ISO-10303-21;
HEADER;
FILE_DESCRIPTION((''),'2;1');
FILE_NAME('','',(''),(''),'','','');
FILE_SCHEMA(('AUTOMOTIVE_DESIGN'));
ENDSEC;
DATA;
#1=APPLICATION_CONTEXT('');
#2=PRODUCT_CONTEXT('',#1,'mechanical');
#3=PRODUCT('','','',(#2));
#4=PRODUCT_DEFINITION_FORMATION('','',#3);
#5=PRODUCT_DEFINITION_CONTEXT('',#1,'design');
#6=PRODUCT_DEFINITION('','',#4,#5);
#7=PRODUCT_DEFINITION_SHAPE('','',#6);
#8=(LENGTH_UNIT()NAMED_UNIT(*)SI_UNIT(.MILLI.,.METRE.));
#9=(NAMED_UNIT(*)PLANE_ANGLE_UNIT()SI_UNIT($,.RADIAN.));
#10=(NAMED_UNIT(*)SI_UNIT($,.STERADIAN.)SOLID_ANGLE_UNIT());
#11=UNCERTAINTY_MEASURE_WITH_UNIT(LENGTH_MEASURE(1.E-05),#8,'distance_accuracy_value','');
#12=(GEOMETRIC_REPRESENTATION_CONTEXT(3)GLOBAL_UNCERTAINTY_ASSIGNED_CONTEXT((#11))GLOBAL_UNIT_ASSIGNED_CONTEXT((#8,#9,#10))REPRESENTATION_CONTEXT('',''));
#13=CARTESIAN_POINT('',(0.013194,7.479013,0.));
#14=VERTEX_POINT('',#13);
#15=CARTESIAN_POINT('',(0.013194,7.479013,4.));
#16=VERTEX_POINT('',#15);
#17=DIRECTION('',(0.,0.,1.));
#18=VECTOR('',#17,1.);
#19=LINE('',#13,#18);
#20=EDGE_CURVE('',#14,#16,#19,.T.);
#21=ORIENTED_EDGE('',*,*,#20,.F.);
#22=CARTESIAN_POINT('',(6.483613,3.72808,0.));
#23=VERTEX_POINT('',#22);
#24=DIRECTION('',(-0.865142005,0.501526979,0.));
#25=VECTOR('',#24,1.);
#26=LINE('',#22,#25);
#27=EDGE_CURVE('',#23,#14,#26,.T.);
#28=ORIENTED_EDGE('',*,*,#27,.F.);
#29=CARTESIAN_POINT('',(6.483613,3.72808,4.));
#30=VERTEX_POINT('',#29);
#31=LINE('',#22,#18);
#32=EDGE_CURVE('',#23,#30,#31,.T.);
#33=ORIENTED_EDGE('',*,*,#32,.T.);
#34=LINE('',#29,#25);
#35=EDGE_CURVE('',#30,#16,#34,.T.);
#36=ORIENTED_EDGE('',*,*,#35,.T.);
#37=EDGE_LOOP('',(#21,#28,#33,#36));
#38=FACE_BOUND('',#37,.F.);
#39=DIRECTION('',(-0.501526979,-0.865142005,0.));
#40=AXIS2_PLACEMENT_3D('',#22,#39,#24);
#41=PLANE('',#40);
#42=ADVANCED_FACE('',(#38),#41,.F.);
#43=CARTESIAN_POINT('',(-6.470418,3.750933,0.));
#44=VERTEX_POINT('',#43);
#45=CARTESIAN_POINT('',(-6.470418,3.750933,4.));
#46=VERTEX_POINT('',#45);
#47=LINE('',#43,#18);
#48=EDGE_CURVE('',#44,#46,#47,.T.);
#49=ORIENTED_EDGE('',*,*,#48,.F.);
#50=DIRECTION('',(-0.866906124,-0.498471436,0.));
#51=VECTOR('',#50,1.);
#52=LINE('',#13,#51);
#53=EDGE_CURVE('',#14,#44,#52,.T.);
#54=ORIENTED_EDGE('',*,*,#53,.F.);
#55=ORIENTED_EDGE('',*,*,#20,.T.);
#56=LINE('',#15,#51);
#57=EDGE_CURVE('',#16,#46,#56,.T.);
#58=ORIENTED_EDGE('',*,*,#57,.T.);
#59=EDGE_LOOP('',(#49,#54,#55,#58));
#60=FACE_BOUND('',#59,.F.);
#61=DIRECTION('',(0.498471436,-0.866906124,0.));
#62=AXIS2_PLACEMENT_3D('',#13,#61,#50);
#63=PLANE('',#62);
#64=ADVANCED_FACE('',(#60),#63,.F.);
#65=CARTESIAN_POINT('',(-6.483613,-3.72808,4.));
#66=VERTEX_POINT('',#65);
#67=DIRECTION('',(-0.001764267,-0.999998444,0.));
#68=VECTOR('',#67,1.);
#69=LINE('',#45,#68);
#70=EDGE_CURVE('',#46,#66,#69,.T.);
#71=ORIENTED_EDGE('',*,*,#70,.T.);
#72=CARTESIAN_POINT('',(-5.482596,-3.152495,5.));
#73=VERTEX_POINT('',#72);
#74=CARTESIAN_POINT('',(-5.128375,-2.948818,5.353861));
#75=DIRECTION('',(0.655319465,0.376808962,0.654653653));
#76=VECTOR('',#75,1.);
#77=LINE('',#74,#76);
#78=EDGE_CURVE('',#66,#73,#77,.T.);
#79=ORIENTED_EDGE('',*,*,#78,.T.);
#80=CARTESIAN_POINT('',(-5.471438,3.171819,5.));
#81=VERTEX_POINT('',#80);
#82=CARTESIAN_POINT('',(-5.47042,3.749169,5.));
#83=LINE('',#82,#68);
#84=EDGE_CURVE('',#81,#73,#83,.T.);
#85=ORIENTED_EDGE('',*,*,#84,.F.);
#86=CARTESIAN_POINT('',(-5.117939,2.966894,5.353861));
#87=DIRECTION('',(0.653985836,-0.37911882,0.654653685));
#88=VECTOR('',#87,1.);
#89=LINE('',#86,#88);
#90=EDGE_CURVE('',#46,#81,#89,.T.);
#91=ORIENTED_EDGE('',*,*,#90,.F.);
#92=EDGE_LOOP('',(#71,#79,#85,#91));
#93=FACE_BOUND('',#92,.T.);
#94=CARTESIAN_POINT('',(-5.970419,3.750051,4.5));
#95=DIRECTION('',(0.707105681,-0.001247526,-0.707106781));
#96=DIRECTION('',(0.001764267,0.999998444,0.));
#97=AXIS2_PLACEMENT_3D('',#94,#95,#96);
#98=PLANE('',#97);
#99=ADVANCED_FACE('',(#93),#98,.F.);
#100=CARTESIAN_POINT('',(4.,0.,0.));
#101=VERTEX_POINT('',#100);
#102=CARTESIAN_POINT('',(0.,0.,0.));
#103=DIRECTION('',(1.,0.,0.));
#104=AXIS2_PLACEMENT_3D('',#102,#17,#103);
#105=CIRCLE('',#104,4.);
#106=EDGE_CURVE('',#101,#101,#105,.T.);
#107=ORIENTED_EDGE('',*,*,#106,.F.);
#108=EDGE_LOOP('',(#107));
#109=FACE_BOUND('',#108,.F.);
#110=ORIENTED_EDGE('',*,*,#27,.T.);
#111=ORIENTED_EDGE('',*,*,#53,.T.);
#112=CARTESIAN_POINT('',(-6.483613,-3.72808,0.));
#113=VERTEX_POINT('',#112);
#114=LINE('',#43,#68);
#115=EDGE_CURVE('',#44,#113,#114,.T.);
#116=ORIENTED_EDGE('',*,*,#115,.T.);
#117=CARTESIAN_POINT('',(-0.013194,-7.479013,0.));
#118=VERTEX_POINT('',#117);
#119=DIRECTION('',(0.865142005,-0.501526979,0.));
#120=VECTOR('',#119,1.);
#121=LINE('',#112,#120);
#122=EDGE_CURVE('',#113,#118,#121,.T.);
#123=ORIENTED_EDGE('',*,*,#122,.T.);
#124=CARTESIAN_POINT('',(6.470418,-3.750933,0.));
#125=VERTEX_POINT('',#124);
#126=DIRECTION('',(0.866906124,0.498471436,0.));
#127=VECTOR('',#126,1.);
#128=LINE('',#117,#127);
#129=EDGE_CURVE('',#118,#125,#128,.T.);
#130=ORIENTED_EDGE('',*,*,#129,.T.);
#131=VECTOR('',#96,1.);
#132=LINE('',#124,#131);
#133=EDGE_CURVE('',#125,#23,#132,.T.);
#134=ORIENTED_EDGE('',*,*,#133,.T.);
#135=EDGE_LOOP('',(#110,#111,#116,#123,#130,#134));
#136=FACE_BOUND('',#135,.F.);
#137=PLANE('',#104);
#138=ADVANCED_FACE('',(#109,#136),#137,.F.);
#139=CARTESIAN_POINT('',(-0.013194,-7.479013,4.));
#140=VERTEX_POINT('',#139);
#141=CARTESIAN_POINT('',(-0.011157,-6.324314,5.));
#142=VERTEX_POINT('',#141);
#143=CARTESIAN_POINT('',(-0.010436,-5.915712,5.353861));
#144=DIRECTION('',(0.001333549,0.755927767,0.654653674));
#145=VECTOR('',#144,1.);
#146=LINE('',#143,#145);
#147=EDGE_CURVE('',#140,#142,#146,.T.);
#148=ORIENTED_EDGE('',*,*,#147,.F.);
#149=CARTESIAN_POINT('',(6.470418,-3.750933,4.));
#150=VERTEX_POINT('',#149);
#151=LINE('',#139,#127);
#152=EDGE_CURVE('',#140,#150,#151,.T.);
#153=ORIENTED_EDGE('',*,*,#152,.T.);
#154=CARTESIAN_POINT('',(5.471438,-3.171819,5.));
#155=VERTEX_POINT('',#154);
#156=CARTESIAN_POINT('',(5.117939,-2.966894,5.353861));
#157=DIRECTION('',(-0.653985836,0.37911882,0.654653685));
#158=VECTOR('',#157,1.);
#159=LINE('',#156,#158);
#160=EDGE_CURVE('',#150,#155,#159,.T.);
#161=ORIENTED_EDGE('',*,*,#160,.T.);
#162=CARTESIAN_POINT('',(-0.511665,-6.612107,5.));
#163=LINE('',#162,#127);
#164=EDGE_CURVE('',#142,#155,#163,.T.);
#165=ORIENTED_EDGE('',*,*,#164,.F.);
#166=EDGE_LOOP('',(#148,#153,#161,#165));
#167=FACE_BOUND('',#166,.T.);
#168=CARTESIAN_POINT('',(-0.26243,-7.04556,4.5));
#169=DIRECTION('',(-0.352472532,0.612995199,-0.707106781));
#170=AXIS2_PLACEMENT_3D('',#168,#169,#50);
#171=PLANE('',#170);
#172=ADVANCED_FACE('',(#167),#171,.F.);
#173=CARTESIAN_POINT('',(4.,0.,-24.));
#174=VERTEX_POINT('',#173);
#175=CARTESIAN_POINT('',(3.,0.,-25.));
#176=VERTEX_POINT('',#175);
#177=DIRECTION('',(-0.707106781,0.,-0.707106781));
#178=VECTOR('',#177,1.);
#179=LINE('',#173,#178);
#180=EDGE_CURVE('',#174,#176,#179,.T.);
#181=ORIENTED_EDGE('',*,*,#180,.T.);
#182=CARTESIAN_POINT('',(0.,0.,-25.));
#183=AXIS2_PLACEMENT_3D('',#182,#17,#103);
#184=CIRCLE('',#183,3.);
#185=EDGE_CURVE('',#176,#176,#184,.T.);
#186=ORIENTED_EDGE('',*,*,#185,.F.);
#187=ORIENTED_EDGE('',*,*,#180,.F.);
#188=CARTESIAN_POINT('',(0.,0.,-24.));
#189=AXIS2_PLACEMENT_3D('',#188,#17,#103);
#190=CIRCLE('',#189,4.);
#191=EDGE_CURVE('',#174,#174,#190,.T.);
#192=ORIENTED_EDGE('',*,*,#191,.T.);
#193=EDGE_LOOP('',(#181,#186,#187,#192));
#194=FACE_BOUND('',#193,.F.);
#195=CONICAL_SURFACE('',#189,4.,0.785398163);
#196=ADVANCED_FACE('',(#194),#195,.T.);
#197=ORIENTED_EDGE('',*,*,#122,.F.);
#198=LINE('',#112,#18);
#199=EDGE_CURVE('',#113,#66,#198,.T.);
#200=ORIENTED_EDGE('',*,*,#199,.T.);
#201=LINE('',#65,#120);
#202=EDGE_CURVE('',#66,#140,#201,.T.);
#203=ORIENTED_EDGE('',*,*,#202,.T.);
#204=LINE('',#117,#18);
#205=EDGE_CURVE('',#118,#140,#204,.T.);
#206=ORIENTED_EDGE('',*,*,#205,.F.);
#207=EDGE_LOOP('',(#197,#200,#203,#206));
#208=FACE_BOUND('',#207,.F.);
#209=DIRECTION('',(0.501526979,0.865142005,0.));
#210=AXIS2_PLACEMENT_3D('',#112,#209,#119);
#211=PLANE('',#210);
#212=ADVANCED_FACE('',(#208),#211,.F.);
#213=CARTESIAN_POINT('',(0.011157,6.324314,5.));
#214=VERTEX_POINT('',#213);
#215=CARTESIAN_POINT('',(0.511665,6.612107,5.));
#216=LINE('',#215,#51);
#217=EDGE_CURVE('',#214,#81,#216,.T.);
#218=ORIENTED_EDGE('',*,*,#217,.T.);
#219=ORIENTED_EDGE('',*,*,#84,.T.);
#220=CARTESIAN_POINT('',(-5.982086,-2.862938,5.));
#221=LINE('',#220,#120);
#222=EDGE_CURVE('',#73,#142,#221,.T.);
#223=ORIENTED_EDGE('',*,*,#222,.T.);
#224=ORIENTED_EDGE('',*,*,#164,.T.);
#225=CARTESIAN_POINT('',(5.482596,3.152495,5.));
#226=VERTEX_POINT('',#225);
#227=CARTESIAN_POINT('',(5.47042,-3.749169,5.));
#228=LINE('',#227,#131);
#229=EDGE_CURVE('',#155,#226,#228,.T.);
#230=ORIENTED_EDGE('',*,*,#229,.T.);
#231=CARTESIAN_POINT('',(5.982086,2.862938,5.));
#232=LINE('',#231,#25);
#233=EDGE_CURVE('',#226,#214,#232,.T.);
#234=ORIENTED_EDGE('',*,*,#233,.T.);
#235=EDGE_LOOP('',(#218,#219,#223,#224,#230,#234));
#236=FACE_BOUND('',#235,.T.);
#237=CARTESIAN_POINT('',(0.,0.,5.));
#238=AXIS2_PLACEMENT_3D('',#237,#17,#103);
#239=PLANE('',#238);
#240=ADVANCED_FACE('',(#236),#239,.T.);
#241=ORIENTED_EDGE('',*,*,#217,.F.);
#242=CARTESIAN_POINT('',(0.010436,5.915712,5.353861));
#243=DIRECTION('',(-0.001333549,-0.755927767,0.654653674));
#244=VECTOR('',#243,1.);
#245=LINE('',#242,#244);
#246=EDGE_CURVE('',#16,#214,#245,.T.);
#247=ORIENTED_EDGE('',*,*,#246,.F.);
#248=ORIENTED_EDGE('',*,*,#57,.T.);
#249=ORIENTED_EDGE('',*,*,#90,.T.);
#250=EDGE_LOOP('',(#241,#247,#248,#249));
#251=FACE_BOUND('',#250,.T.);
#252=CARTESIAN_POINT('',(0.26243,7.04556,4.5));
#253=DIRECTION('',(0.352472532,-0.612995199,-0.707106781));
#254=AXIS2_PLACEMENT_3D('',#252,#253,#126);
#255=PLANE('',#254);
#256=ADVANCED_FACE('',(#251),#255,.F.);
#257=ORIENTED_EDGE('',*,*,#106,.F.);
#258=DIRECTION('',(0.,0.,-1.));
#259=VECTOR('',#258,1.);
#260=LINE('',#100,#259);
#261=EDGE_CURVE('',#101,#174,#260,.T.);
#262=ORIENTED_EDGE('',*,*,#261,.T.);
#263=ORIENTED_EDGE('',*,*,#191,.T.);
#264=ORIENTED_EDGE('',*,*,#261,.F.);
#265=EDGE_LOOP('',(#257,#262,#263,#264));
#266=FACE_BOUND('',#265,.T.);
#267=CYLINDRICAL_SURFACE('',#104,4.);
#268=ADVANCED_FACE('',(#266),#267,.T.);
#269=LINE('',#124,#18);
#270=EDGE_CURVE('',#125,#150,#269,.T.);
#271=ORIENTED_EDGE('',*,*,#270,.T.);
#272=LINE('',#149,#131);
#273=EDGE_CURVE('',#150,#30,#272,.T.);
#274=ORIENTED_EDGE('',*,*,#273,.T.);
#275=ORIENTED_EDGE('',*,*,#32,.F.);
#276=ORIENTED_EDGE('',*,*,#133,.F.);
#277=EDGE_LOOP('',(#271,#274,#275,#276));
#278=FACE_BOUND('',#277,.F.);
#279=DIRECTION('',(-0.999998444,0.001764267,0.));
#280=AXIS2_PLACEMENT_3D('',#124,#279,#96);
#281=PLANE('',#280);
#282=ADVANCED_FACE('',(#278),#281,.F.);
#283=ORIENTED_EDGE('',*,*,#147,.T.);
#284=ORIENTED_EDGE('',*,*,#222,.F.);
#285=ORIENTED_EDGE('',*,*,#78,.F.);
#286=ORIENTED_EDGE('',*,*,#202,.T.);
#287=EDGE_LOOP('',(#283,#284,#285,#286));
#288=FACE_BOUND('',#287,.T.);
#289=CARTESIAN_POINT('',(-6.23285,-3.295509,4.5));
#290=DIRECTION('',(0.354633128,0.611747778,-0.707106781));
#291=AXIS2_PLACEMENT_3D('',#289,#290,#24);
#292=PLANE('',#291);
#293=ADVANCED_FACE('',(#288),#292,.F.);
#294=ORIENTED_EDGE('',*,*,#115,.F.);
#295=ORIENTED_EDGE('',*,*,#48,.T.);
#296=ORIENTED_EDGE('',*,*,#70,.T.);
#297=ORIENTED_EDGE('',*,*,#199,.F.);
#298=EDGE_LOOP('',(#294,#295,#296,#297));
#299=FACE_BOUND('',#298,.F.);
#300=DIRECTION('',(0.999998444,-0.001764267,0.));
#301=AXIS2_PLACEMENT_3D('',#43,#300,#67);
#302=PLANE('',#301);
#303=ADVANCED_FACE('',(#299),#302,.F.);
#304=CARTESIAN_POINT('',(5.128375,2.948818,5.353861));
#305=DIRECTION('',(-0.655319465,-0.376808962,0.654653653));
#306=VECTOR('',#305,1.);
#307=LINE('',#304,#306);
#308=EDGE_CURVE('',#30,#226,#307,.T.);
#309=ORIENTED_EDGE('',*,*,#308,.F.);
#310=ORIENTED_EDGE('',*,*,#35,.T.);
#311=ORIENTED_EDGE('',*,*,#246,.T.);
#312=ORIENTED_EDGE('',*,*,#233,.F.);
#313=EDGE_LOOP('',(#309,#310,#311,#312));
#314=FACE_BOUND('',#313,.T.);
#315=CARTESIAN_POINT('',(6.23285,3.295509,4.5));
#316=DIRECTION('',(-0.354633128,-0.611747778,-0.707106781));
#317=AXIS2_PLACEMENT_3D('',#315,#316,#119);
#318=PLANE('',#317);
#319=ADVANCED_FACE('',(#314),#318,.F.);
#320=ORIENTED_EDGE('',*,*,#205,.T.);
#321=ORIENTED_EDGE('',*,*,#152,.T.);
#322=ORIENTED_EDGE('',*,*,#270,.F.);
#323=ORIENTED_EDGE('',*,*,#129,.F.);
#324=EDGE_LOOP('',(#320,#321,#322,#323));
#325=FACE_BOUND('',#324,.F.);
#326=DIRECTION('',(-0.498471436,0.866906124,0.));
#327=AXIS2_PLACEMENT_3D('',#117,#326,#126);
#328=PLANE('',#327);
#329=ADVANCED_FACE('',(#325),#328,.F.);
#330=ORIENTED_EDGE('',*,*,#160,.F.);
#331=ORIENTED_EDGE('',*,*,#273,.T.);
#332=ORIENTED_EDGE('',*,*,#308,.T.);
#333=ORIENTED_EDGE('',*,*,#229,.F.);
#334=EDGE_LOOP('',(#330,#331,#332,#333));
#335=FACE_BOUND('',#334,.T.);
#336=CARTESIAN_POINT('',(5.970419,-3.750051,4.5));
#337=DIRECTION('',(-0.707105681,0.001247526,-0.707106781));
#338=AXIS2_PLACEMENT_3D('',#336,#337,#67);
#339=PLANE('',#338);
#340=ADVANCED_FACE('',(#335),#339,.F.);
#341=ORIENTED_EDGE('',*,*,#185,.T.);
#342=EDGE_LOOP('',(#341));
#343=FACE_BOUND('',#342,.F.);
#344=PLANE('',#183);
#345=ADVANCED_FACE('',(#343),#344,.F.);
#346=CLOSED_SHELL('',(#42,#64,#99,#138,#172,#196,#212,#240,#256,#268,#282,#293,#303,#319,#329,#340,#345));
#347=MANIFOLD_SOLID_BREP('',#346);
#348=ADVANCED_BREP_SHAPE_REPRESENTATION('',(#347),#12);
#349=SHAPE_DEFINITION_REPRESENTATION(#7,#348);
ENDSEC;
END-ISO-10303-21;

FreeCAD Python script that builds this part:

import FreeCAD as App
import Part
import Sketcher
from FreeCAD import Vector


def edges_at(feature, points):
    """Names of the edges that pass closest to the given points."""
    edges = feature.Shape.Edges
    near = lambda p: min(range(len(edges)), key=lambda i: edges[i].distToShape(Part.Vertex(*p))[0])
    return sorted({f"Edge{near(p) + 1}" for p in points})

doc = App.newDocument("Part")
body = doc.addObject("PartDesign::Body", "Body")

sketch1 = doc.addObject("Sketcher::SketchObject", "Sketch")
body.addObject(sketch1)
sketch1.AttachmentSupport = (doc.XY_Plane, [""])
sketch1.MapMode = "FlatFace"
sketch1.addGeometry(Part.LineSegment(Vector(0, -7, 0), Vector(6, -4, 0)), False)
sketch1.addGeometry(Part.LineSegment(Vector(6, -4, 0), Vector(6, 4, 0)), False)
sketch1.addGeometry(Part.LineSegment(Vector(6, 4, 0), Vector(0, 7, 0)), False)
sketch1.addGeometry(Part.LineSegment(Vector(0, 7, 0), Vector(-6, 4, 0)), False)
sketch1.addGeometry(Part.LineSegment(Vector(-6, 4, 0), Vector(-6, -4, 0)), False)
sketch1.addGeometry(Part.LineSegment(Vector(-6, -4, 0), Vector(0, -7, 0)), False)
sketch1.addConstraint(Sketcher.Constraint("Coincident", 0, 2, 1, 1))
sketch1.addConstraint(Sketcher.Constraint("Coincident", 1, 2, 2, 1))
sketch1.addConstraint(Sketcher.Constraint("Coincident", 2, 2, 3, 1))
sketch1.addConstraint(Sketcher.Constraint("Coincident", 3, 2, 4, 1))
sketch1.addConstraint(Sketcher.Constraint("Coincident", 4, 2, 5, 1))
sketch1.addConstraint(Sketcher.Constraint("Coincident", 5, 2, 0, 1))
sketch1.addConstraint(Sketcher.Constraint("Symmetric", 0, 2, 3, 2, -1, 1))
sketch1.addConstraint(Sketcher.Constraint("Symmetric", 1, 2, 4, 2, -1, 1))
sketch1.addConstraint(Sketcher.Constraint("Symmetric", 2, 2, 5, 2, -1, 1))
sketch1.addConstraint(Sketcher.Constraint("Equal", 0, 1))
sketch1.addConstraint(Sketcher.Constraint("Equal", 1, 2))
sketch1.addConstraint(Sketcher.Constraint("DistanceY", -1, 1, 1, 2, 3.72808))
sketch1.addConstraint(Sketcher.Constraint("DistanceX", 2, 2, 1, 2, 6.470419))
sketch1.addConstraint(Sketcher.Constraint("DistanceY", 3, 2, 2, 2, 3.72808))
sketch1.addConstraint(Sketcher.Constraint("DistanceX", 5, 2, 2, 2, 0.026388))
pad1 = doc.addObject("PartDesign::Pad", "Pad")
body.addObject(pad1)
pad1.Profile = sketch1
pad1.Length = 5

sketch2 = doc.addObject("Sketcher::SketchObject", "Sketch001")
body.addObject(sketch2)
sketch2.AttachmentSupport = (doc.XY_Plane, [""])
sketch2.MapMode = "FlatFace"
sketch2.addGeometry(Part.Circle(Vector(0, 0, 0), Vector(0, 0, 1), 4), False)
sketch2.addConstraint(Sketcher.Constraint("Coincident", 0, 3, -1, 1))
sketch2.addConstraint(Sketcher.Constraint("Diameter", 0, 8.0))
pad2 = doc.addObject("PartDesign::Pad", "Pad001")
body.addObject(pad2)
pad2.Profile = sketch2
pad2.Length = 25
pad2.Reversed = True
doc.recompute()

chamfer = doc.addObject("PartDesign::Chamfer", "Chamfer")
body.addObject(chamfer)
chamfer.Base = (pad2, edges_at(pad2, [(-4, 0, -25)]))
chamfer.Size = 1
doc.recompute()

chamfer2 = doc.addObject("PartDesign::Chamfer", "Chamfer001")
body.addObject(chamfer2)
chamfer2.Base = (chamfer, edges_at(chamfer, [
    (6.477, -0.011, 5),
    (3.229, -5.615, 5),
    (3.248, 5.604, 5),
    (-6.477, 0.011, 5),
    (-3.248, -5.604, 5),
    (-3.229, 5.615, 5),
]))
chamfer2.Size = 1

doc.recompute()
